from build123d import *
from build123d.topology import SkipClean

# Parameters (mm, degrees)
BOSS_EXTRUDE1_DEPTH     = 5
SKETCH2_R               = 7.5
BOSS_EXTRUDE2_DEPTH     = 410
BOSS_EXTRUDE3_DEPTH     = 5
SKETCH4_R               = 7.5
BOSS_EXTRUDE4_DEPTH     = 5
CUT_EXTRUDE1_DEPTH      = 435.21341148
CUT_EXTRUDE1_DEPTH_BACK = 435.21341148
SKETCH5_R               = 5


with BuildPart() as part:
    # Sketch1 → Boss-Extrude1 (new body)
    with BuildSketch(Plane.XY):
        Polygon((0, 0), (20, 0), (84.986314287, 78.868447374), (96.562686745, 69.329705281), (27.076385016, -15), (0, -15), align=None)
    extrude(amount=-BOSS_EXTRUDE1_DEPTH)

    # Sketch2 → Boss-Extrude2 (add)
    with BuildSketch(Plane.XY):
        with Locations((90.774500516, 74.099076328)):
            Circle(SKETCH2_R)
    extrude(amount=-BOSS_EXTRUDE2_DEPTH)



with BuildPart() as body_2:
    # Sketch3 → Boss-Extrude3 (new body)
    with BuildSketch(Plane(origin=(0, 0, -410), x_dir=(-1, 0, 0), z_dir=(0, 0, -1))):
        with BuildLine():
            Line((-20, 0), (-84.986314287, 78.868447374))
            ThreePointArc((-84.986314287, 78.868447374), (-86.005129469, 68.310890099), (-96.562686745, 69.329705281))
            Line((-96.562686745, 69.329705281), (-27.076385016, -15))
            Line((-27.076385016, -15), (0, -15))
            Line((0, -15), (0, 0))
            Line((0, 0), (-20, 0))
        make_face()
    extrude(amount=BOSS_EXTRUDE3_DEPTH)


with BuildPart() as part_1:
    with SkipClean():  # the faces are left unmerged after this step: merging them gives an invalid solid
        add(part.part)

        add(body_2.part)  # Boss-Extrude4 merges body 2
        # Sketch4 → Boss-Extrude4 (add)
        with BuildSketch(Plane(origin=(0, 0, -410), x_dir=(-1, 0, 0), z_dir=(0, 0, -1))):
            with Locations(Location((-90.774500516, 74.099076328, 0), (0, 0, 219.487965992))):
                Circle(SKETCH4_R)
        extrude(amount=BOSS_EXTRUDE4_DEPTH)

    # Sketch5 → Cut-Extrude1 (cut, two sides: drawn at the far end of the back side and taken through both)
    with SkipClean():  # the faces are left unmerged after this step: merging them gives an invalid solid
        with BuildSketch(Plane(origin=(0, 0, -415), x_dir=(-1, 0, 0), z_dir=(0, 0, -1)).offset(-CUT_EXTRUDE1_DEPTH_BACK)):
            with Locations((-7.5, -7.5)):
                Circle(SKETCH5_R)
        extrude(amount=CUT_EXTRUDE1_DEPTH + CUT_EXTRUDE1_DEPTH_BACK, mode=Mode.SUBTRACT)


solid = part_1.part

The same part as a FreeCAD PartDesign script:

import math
import FreeCAD as App
import Part
import Sketcher

doc = App.newDocument("Part")
body = doc.addObject("PartDesign::Body", "Body")

sketch1 = doc.addObject("Sketcher::SketchObject", "Sketch")
body.addObject(sketch1)
sketch1.AttachmentSupport = (doc.XY_Plane, [""])
sketch1.MapMode = "FlatFace"
sketch1.addGeometry([
    Part.LineSegment(App.Vector(20, 0, 0), App.Vector(0, 0, 0)),
    Part.LineSegment(App.Vector(0, 0, 0), App.Vector(0, -15, 0)),
    Part.LineSegment(App.Vector(0, -15, 0), App.Vector(27, -15, 0)),
    Part.LineSegment(App.Vector(27, -15, 0), App.Vector(97, 69, 0)),
    Part.LineSegment(App.Vector(97, 69, 0), App.Vector(85, 79, 0)),
    Part.LineSegment(App.Vector(85, 79, 0), App.Vector(20, 0, 0)),
], False)
sketch1.addConstraint([
    Sketcher.Constraint("Coincident", 0, 2, 1, 1),
    Sketcher.Constraint("Coincident", 1, 2, 2, 1),
    Sketcher.Constraint("Coincident", 2, 2, 3, 1),
    Sketcher.Constraint("Coincident", 3, 2, 4, 1),
    Sketcher.Constraint("Coincident", 4, 2, 5, 1),
    Sketcher.Constraint("Coincident", 5, 2, 0, 1),
    Sketcher.Constraint("Horizontal", 0),
    Sketcher.Constraint("Vertical", 1),
    Sketcher.Constraint("Horizontal", 2),
    Sketcher.Constraint("Coincident", 0, 2, -1, 1),
    Sketcher.Constraint("Perpendicular", 3, 4),
    Sketcher.Constraint("Perpendicular", 4, 5),
    Sketcher.Constraint("DistanceX", 0, 2, 0, 1, 20.0),
    Sketcher.Constraint("DistanceY", 1, 2, 1, 1, 15.0),
    Sketcher.Constraint("Distance", 4, 15.0),
    Sketcher.Constraint("Distance", 3, 109.269599),
    Sketcher.Constraint("DistanceX", 2, 2, 3, 2, 69.486302),
])
pad1 = doc.addObject("PartDesign::Pad", "Pad")
body.addObject(pad1)
pad1.Profile = sketch1
pad1.Length = 5
pad1.Reversed = True

sketch2 = doc.addObject("Sketcher::SketchObject", "Sketch001")
body.addObject(sketch2)
sketch2.AttachmentSupport = (doc.XY_Plane, [""])
sketch2.MapMode = "FlatFace"
sketch2.addGeometry(Part.Circle(App.Vector(91, 74, 0), App.Vector(0, 0, 1), 8), False)
sketch2.addConstraint([
    Sketcher.Constraint("Diameter", 0, 15.0),
    Sketcher.Constraint("DistanceX", -1, 1, 0, 3, 90.774501),
    Sketcher.Constraint("DistanceY", -1, 1, 0, 3, 74.099076),
])
pad2 = doc.addObject("PartDesign::Pad", "Pad001")
body.addObject(pad2)
pad2.Profile = sketch2
pad2.Length = 410
pad2.Reversed = True
body2 = doc.addObject("PartDesign::Body", "Body001")

sketch3 = doc.addObject("Sketcher::SketchObject", "Sketch002")
body2.addObject(sketch3)
sketch3.AttachmentSupport = (doc.getObject("XY_Plane001"), [""])
sketch3.MapMode = "FlatFace"
sketch3.AttachmentOffset = App.Placement(App.Vector(0, 0, -410), App.Rotation())
sketch3.addGeometry([
    Part.LineSegment(App.Vector(20, 0, 0), App.Vector(85, 79, 0)),
    Part.ArcOfCircle(Part.Circle(App.Vector(91, 74, 0), App.Vector(0, 0, 1), 8), math.radians(141), math.radians(321)),
    Part.LineSegment(App.Vector(97, 69, 0), App.Vector(27, -15, 0)),
    Part.LineSegment(App.Vector(27, -15, 0), App.Vector(0, -15, 0)),
    Part.LineSegment(App.Vector(0, -15, 0), App.Vector(0, 0, 0)),
    Part.LineSegment(App.Vector(0, 0, 0), App.Vector(20, 0, 0)),
], False)
sketch3.addConstraint([
    Sketcher.Constraint("Tangent", 0, 2, 1, 1),
    Sketcher.Constraint("Tangent", 1, 2, 2, 1),
    Sketcher.Constraint("Coincident", 2, 2, 3, 1),
    Sketcher.Constraint("Coincident", 3, 2, 4, 1),
    Sketcher.Constraint("Coincident", 4, 2, 5, 1),
    Sketcher.Constraint("Coincident", 5, 2, 0, 1),
    Sketcher.Constraint("Horizontal", 3),
    Sketcher.Constraint("Vertical", 4),
    Sketcher.Constraint("Horizontal", 5),
    Sketcher.Constraint("Coincident", 4, 2, -1, 1),
    Sketcher.Constraint("Parallel", 0, 2),
    Sketcher.Constraint("Radius", 1, 7.5),
    Sketcher.Constraint("DistanceX", 5, 1, 5, 2, 20.0),
    Sketcher.Constraint("DistanceY", 4, 1, 4, 2, 15.0),
    Sketcher.Constraint("Distance", 2, 109.269599),
    Sketcher.Constraint("DistanceX", -1, 1, 1, 3, 90.774501),
])
pad3 = doc.addObject("PartDesign::Pad", "Pad002")
body2.addObject(pad3)
pad3.Profile = sketch3
pad3.Length = 5
pad3.Reversed = True
body.AllowCompound = True
doc.recompute()

boolean = doc.addObject("PartDesign::Boolean", "Boolean")
body.addObject(boolean)
boolean.Type = "Fuse"
boolean.addObjects([body2])

sketch4 = doc.addObject("Sketcher::SketchObject", "Sketch003")
body.addObject(sketch4)
sketch4.AttachmentSupport = (doc.XY_Plane, [""])
sketch4.MapMode = "FlatFace"
sketch4.AttachmentOffset = App.Placement(App.Vector(0, 0, -410), App.Rotation())
sketch4.addGeometry(Part.Circle(App.Vector(91, 74, 0), App.Vector(0, 0, 1), 8), False)
sketch4.addConstraint([
    Sketcher.Constraint("Diameter", 0, 15.0),
    Sketcher.Constraint("DistanceX", -1, 1, 0, 3, 90.774501),
    Sketcher.Constraint("DistanceY", -1, 1, 0, 3, 74.099076),
])
pad4 = doc.addObject("PartDesign::Pad", "Pad003")
body.addObject(pad4)
pad4.Profile = sketch4
pad4.Length = 5
pad4.Reversed = True

sketch5 = doc.addObject("Sketcher::SketchObject", "Sketch004")
body.addObject(sketch5)
sketch5.AttachmentSupport = (doc.XY_Plane, [""])
sketch5.MapMode = "FlatFace"
sketch5.AttachmentOffset = App.Placement(App.Vector(0, 0, -415), App.Rotation())
sketch5.addGeometry(Part.Circle(App.Vector(8, -8, 0), App.Vector(0, 0, 1), 5), False)
sketch5.addConstraint([
    Sketcher.Constraint("Diameter", 0, 10.0),
    Sketcher.Constraint("DistanceX", -1, 1, 0, 3, 7.5),
    Sketcher.Constraint("DistanceY", 0, 3, -1, 1, 7.5),
])
pocket1 = doc.addObject("PartDesign::Pocket", "Pocket")
body.addObject(pocket1)
pocket1.Profile = sketch5
pocket1.Type = "ThroughAll"
pocket1.Midplane = True

doc.recompute()
